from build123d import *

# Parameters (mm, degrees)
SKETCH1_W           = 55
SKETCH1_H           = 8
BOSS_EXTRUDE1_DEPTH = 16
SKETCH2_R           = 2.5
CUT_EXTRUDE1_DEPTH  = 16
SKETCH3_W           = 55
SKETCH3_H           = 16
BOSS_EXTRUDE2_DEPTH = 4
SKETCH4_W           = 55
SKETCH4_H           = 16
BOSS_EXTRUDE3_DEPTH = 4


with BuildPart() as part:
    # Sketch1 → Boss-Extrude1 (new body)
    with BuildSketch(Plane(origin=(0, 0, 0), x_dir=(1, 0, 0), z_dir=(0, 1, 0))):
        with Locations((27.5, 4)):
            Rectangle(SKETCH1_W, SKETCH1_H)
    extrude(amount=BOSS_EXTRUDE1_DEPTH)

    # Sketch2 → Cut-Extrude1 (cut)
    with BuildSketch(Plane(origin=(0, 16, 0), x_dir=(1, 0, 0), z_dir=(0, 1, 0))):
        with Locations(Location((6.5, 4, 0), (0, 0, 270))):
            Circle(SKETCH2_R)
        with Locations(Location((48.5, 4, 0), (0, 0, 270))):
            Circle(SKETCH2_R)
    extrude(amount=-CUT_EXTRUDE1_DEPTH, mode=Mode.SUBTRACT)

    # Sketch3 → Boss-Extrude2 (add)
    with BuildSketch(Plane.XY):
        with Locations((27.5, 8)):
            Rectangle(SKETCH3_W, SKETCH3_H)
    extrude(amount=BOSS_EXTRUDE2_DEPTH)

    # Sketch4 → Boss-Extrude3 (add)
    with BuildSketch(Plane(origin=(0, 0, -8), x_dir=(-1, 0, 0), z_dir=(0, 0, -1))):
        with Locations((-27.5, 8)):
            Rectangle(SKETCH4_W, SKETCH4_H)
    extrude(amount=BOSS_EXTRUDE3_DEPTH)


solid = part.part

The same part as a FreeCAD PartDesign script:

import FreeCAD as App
import Part
import Sketcher

V = App.Vector


def add_polygon(sketch, points):
    """Adds a closed chain of lines whose ends are joined by coincident constraints."""
    first, n = sketch.GeometryCount, len(points)
    for a, b in zip(points, points[1:] + points[:1]):
        sketch.addGeometry(Part.LineSegment(App.Vector(*a, 0), App.Vector(*b, 0)), False)
    for i in range(n):
        sketch.addConstraint(Sketcher.Constraint("Coincident", first + i, 2, first + (i + 1) % n, 1))

doc = App.newDocument("Part")
body = doc.addObject("PartDesign::Body", "Body")

# Sketch on XZ plane
sketch1 = doc.addObject("Sketcher::SketchObject", "Sketch")
body.addObject(sketch1)
sketch1.AttachmentSupport = (doc.XZ_Plane, [""])
sketch1.MapMode = "FlatFace"
add_polygon(sketch1, [(0, -8), (0, 0), (55, 0), (55, -8)])  # lines 0-3
sketch1.addConstraint([
    Sketcher.Constraint("Vertical", 0),
    Sketcher.Constraint("Horizontal", 1),
    Sketcher.Constraint("Vertical", 2),
    Sketcher.Constraint("Horizontal", 3),
    Sketcher.Constraint("Coincident", 0, 2, -1, 1),
    Sketcher.Constraint("DistanceX", 1, 1, 1, 2, 55.0),
    Sketcher.Constraint("DistanceY", 0, 1, 0, 2, 8.0),
])
pad1 = doc.addObject("PartDesign::Pad", "Pad")
body.addObject(pad1)
pad1.Profile = sketch1
pad1.Length = 16
pad1.Reversed = True

# Sketch on XZ plane
sketch2 = doc.addObject("Sketcher::SketchObject", "Sketch001")
body.addObject(sketch2)
sketch2.AttachmentSupport = (doc.XZ_Plane, [""])
sketch2.MapMode = "FlatFace"
sketch2.AttachmentOffset = App.Placement(V(0, 0, -16), App.Rotation())
sketch2.addGeometry([
    Part.Circle(V(6.5, -4, 0), V(0, 0, 1), 2.5),
    Part.Circle(V(48.5, -4, 0), V(0, 0, 1), 2.5),
], False)
sketch2.addConstraint([
    Sketcher.Constraint("Equal", 0, 1),
    Sketcher.Constraint("Horizontal", 0, 3, 1, 3),
    Sketcher.Constraint("Diameter", 0, 5.0),
    Sketcher.Constraint("DistanceY", 0, 3, -1, 1, 4.0),
    Sketcher.Constraint("DistanceX", 0, 3, 1, 3, 42.0),
    Sketcher.Constraint("DistanceX", -1, 1, 0, 3, 6.5),
])
pocket1 = doc.addObject("PartDesign::Pocket", "Pocket")
body.addObject(pocket1)
pocket1.Profile = sketch2
pocket1.Length = 16
pocket1.Reversed = True

# Sketch on XY plane
sketch3 = doc.addObject("Sketcher::SketchObject", "Sketch002")
body.addObject(sketch3)
sketch3.AttachmentSupport = (doc.XY_Plane, [""])
sketch3.MapMode = "FlatFace"
add_polygon(sketch3, [(0, 16), (0, 0), (55, 0), (55, 16)])  # lines 0-3
sketch3.addConstraint([
    Sketcher.Constraint("Vertical", 0),
    Sketcher.Constraint("Horizontal", 1),
    Sketcher.Constraint("Vertical", 2),
    Sketcher.Constraint("Horizontal", 3),
    Sketcher.Constraint("Coincident", 0, 2, -1, 1),
    Sketcher.Constraint("DistanceX", 1, 1, 1, 2, 55.0),
    Sketcher.Constraint("DistanceY", 0, 2, 0, 1, 16.0),
])
pad2 = doc.addObject("PartDesign::Pad", "Pad001")
body.addObject(pad2)
pad2.Profile = sketch3
pad2.Length = 4

# Sketch on XY plane
sketch4 = doc.addObject("Sketcher::SketchObject", "Sketch003")
body.addObject(sketch4)
sketch4.AttachmentSupport = (doc.XY_Plane, [""])
sketch4.MapMode = "FlatFace"
sketch4.AttachmentOffset = App.Placement(V(0, 0, -8), App.Rotation())
add_polygon(sketch4, [(55, 16), (55, 0), (0, 0), (0, 16)])  # lines 0-3
sketch4.addConstraint([
    Sketcher.Constraint("Vertical", 0),
    Sketcher.Constraint("Horizontal", 1),
    Sketcher.Constraint("Vertical", 2),
    Sketcher.Constraint("Horizontal", 3),
    Sketcher.Constraint("Coincident", 1, 2, -1, 1),
    Sketcher.Constraint("DistanceX", 1, 2, 1, 1, 55.0),
    Sketcher.Constraint("DistanceY", 0, 2, 0, 1, 16.0),
])
pad3 = doc.addObject("PartDesign::Pad", "Pad002")
body.addObject(pad3)
pad3.Profile = sketch4
pad3.Length = 4
pad3.Reversed = True

doc.recompute()
